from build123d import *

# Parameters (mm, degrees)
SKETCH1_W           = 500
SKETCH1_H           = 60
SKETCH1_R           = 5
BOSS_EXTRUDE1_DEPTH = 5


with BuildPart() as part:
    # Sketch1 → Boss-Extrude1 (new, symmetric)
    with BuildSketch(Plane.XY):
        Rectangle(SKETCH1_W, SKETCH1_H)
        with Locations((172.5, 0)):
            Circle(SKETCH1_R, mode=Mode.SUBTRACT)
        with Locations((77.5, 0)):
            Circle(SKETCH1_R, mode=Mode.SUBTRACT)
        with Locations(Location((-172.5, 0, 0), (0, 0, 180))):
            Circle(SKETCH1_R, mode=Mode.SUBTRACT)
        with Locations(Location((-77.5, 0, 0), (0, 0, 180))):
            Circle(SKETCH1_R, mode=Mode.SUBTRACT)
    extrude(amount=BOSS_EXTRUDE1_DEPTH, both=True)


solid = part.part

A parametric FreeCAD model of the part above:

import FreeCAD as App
import Part
import Sketcher
from FreeCAD import Vector

doc = App.newDocument("Part")
body = doc.addObject("PartDesign::Body", "Body")

# Sketch on XY plane
sketch1 = doc.addObject("Sketcher::SketchObject", "Sketch")
body.addObject(sketch1)
sketch1.AttachmentSupport = (doc.XY_Plane, [""])
sketch1.MapMode = "FlatFace"
sketch1.addGeometry([
    Part.LineSegment(Vector(-250, 30, 0), Vector(-250, -30, 0)),  # 0
    Part.LineSegment(Vector(-250, -30, 0), Vector(250, -30, 0)),  # 1
    Part.LineSegment(Vector(250, -30, 0), Vector(250, 30, 0)),  # 2
    Part.LineSegment(Vector(250, 30, 0), Vector(-250, 30, 0)),  # 3
    Part.Circle(Vector(-172, 0, 0), Vector(0, 0, 1), 5),  # 4
    Part.Circle(Vector(-78, 0, 0), Vector(0, 0, 1), 5),  # 5
    Part.Circle(Vector(78, 0, 0), Vector(0, 0, 1), 5),  # 6
    Part.Circle(Vector(172, 0, 0), Vector(0, 0, 1), 5),  # 7
], False)
sketch1.addConstraint([
    Sketcher.Constraint("Coincident", 0, 2, 1, 1),
    Sketcher.Constraint("Coincident", 1, 2, 2, 1),
    Sketcher.Constraint("Coincident", 2, 2, 3, 1),
    Sketcher.Constraint("Coincident", 3, 2, 0, 1),
    Sketcher.Constraint("Vertical", 0),
    Sketcher.Constraint("Horizontal", 1),
    Sketcher.Constraint("Vertical", 2),
    Sketcher.Constraint("Horizontal", 3),
    Sketcher.Constraint("Equal", 4, 5),
    Sketcher.Constraint("Equal", 5, 6),
    Sketcher.Constraint("Equal", 6, 7),
    Sketcher.Constraint("Symmetric", 5, 3, 6, 3, -1, 1),
    Sketcher.Constraint("Symmetric", 4, 3, 7, 3, -1, 1),
    Sketcher.Constraint("Symmetric", 0, 2, 2, 2, -1, 1),
    Sketcher.Constraint("PointOnObject", 4, 3, -1),
    Sketcher.Constraint("PointOnObject", 5, 3, -1),
    Sketcher.Constraint("Diameter", 4, 10.0),
    Sketcher.Constraint("DistanceX", 1, 1, 1, 2, 500.0),
    Sketcher.Constraint("DistanceY", 0, 2, 0, 1, 60.0),
    Sketcher.Constraint("DistanceX", 4, 3, 5, 3, 95.0),
    Sketcher.Constraint("DistanceX", 5, 3, 6, 3, 155.0),
])
pad1 = doc.addObject("PartDesign::Pad", "Pad")
body.addObject(pad1)
pad1.Profile = sketch1
pad1.Length = 10
pad1.Midplane = True

doc.recompute()
